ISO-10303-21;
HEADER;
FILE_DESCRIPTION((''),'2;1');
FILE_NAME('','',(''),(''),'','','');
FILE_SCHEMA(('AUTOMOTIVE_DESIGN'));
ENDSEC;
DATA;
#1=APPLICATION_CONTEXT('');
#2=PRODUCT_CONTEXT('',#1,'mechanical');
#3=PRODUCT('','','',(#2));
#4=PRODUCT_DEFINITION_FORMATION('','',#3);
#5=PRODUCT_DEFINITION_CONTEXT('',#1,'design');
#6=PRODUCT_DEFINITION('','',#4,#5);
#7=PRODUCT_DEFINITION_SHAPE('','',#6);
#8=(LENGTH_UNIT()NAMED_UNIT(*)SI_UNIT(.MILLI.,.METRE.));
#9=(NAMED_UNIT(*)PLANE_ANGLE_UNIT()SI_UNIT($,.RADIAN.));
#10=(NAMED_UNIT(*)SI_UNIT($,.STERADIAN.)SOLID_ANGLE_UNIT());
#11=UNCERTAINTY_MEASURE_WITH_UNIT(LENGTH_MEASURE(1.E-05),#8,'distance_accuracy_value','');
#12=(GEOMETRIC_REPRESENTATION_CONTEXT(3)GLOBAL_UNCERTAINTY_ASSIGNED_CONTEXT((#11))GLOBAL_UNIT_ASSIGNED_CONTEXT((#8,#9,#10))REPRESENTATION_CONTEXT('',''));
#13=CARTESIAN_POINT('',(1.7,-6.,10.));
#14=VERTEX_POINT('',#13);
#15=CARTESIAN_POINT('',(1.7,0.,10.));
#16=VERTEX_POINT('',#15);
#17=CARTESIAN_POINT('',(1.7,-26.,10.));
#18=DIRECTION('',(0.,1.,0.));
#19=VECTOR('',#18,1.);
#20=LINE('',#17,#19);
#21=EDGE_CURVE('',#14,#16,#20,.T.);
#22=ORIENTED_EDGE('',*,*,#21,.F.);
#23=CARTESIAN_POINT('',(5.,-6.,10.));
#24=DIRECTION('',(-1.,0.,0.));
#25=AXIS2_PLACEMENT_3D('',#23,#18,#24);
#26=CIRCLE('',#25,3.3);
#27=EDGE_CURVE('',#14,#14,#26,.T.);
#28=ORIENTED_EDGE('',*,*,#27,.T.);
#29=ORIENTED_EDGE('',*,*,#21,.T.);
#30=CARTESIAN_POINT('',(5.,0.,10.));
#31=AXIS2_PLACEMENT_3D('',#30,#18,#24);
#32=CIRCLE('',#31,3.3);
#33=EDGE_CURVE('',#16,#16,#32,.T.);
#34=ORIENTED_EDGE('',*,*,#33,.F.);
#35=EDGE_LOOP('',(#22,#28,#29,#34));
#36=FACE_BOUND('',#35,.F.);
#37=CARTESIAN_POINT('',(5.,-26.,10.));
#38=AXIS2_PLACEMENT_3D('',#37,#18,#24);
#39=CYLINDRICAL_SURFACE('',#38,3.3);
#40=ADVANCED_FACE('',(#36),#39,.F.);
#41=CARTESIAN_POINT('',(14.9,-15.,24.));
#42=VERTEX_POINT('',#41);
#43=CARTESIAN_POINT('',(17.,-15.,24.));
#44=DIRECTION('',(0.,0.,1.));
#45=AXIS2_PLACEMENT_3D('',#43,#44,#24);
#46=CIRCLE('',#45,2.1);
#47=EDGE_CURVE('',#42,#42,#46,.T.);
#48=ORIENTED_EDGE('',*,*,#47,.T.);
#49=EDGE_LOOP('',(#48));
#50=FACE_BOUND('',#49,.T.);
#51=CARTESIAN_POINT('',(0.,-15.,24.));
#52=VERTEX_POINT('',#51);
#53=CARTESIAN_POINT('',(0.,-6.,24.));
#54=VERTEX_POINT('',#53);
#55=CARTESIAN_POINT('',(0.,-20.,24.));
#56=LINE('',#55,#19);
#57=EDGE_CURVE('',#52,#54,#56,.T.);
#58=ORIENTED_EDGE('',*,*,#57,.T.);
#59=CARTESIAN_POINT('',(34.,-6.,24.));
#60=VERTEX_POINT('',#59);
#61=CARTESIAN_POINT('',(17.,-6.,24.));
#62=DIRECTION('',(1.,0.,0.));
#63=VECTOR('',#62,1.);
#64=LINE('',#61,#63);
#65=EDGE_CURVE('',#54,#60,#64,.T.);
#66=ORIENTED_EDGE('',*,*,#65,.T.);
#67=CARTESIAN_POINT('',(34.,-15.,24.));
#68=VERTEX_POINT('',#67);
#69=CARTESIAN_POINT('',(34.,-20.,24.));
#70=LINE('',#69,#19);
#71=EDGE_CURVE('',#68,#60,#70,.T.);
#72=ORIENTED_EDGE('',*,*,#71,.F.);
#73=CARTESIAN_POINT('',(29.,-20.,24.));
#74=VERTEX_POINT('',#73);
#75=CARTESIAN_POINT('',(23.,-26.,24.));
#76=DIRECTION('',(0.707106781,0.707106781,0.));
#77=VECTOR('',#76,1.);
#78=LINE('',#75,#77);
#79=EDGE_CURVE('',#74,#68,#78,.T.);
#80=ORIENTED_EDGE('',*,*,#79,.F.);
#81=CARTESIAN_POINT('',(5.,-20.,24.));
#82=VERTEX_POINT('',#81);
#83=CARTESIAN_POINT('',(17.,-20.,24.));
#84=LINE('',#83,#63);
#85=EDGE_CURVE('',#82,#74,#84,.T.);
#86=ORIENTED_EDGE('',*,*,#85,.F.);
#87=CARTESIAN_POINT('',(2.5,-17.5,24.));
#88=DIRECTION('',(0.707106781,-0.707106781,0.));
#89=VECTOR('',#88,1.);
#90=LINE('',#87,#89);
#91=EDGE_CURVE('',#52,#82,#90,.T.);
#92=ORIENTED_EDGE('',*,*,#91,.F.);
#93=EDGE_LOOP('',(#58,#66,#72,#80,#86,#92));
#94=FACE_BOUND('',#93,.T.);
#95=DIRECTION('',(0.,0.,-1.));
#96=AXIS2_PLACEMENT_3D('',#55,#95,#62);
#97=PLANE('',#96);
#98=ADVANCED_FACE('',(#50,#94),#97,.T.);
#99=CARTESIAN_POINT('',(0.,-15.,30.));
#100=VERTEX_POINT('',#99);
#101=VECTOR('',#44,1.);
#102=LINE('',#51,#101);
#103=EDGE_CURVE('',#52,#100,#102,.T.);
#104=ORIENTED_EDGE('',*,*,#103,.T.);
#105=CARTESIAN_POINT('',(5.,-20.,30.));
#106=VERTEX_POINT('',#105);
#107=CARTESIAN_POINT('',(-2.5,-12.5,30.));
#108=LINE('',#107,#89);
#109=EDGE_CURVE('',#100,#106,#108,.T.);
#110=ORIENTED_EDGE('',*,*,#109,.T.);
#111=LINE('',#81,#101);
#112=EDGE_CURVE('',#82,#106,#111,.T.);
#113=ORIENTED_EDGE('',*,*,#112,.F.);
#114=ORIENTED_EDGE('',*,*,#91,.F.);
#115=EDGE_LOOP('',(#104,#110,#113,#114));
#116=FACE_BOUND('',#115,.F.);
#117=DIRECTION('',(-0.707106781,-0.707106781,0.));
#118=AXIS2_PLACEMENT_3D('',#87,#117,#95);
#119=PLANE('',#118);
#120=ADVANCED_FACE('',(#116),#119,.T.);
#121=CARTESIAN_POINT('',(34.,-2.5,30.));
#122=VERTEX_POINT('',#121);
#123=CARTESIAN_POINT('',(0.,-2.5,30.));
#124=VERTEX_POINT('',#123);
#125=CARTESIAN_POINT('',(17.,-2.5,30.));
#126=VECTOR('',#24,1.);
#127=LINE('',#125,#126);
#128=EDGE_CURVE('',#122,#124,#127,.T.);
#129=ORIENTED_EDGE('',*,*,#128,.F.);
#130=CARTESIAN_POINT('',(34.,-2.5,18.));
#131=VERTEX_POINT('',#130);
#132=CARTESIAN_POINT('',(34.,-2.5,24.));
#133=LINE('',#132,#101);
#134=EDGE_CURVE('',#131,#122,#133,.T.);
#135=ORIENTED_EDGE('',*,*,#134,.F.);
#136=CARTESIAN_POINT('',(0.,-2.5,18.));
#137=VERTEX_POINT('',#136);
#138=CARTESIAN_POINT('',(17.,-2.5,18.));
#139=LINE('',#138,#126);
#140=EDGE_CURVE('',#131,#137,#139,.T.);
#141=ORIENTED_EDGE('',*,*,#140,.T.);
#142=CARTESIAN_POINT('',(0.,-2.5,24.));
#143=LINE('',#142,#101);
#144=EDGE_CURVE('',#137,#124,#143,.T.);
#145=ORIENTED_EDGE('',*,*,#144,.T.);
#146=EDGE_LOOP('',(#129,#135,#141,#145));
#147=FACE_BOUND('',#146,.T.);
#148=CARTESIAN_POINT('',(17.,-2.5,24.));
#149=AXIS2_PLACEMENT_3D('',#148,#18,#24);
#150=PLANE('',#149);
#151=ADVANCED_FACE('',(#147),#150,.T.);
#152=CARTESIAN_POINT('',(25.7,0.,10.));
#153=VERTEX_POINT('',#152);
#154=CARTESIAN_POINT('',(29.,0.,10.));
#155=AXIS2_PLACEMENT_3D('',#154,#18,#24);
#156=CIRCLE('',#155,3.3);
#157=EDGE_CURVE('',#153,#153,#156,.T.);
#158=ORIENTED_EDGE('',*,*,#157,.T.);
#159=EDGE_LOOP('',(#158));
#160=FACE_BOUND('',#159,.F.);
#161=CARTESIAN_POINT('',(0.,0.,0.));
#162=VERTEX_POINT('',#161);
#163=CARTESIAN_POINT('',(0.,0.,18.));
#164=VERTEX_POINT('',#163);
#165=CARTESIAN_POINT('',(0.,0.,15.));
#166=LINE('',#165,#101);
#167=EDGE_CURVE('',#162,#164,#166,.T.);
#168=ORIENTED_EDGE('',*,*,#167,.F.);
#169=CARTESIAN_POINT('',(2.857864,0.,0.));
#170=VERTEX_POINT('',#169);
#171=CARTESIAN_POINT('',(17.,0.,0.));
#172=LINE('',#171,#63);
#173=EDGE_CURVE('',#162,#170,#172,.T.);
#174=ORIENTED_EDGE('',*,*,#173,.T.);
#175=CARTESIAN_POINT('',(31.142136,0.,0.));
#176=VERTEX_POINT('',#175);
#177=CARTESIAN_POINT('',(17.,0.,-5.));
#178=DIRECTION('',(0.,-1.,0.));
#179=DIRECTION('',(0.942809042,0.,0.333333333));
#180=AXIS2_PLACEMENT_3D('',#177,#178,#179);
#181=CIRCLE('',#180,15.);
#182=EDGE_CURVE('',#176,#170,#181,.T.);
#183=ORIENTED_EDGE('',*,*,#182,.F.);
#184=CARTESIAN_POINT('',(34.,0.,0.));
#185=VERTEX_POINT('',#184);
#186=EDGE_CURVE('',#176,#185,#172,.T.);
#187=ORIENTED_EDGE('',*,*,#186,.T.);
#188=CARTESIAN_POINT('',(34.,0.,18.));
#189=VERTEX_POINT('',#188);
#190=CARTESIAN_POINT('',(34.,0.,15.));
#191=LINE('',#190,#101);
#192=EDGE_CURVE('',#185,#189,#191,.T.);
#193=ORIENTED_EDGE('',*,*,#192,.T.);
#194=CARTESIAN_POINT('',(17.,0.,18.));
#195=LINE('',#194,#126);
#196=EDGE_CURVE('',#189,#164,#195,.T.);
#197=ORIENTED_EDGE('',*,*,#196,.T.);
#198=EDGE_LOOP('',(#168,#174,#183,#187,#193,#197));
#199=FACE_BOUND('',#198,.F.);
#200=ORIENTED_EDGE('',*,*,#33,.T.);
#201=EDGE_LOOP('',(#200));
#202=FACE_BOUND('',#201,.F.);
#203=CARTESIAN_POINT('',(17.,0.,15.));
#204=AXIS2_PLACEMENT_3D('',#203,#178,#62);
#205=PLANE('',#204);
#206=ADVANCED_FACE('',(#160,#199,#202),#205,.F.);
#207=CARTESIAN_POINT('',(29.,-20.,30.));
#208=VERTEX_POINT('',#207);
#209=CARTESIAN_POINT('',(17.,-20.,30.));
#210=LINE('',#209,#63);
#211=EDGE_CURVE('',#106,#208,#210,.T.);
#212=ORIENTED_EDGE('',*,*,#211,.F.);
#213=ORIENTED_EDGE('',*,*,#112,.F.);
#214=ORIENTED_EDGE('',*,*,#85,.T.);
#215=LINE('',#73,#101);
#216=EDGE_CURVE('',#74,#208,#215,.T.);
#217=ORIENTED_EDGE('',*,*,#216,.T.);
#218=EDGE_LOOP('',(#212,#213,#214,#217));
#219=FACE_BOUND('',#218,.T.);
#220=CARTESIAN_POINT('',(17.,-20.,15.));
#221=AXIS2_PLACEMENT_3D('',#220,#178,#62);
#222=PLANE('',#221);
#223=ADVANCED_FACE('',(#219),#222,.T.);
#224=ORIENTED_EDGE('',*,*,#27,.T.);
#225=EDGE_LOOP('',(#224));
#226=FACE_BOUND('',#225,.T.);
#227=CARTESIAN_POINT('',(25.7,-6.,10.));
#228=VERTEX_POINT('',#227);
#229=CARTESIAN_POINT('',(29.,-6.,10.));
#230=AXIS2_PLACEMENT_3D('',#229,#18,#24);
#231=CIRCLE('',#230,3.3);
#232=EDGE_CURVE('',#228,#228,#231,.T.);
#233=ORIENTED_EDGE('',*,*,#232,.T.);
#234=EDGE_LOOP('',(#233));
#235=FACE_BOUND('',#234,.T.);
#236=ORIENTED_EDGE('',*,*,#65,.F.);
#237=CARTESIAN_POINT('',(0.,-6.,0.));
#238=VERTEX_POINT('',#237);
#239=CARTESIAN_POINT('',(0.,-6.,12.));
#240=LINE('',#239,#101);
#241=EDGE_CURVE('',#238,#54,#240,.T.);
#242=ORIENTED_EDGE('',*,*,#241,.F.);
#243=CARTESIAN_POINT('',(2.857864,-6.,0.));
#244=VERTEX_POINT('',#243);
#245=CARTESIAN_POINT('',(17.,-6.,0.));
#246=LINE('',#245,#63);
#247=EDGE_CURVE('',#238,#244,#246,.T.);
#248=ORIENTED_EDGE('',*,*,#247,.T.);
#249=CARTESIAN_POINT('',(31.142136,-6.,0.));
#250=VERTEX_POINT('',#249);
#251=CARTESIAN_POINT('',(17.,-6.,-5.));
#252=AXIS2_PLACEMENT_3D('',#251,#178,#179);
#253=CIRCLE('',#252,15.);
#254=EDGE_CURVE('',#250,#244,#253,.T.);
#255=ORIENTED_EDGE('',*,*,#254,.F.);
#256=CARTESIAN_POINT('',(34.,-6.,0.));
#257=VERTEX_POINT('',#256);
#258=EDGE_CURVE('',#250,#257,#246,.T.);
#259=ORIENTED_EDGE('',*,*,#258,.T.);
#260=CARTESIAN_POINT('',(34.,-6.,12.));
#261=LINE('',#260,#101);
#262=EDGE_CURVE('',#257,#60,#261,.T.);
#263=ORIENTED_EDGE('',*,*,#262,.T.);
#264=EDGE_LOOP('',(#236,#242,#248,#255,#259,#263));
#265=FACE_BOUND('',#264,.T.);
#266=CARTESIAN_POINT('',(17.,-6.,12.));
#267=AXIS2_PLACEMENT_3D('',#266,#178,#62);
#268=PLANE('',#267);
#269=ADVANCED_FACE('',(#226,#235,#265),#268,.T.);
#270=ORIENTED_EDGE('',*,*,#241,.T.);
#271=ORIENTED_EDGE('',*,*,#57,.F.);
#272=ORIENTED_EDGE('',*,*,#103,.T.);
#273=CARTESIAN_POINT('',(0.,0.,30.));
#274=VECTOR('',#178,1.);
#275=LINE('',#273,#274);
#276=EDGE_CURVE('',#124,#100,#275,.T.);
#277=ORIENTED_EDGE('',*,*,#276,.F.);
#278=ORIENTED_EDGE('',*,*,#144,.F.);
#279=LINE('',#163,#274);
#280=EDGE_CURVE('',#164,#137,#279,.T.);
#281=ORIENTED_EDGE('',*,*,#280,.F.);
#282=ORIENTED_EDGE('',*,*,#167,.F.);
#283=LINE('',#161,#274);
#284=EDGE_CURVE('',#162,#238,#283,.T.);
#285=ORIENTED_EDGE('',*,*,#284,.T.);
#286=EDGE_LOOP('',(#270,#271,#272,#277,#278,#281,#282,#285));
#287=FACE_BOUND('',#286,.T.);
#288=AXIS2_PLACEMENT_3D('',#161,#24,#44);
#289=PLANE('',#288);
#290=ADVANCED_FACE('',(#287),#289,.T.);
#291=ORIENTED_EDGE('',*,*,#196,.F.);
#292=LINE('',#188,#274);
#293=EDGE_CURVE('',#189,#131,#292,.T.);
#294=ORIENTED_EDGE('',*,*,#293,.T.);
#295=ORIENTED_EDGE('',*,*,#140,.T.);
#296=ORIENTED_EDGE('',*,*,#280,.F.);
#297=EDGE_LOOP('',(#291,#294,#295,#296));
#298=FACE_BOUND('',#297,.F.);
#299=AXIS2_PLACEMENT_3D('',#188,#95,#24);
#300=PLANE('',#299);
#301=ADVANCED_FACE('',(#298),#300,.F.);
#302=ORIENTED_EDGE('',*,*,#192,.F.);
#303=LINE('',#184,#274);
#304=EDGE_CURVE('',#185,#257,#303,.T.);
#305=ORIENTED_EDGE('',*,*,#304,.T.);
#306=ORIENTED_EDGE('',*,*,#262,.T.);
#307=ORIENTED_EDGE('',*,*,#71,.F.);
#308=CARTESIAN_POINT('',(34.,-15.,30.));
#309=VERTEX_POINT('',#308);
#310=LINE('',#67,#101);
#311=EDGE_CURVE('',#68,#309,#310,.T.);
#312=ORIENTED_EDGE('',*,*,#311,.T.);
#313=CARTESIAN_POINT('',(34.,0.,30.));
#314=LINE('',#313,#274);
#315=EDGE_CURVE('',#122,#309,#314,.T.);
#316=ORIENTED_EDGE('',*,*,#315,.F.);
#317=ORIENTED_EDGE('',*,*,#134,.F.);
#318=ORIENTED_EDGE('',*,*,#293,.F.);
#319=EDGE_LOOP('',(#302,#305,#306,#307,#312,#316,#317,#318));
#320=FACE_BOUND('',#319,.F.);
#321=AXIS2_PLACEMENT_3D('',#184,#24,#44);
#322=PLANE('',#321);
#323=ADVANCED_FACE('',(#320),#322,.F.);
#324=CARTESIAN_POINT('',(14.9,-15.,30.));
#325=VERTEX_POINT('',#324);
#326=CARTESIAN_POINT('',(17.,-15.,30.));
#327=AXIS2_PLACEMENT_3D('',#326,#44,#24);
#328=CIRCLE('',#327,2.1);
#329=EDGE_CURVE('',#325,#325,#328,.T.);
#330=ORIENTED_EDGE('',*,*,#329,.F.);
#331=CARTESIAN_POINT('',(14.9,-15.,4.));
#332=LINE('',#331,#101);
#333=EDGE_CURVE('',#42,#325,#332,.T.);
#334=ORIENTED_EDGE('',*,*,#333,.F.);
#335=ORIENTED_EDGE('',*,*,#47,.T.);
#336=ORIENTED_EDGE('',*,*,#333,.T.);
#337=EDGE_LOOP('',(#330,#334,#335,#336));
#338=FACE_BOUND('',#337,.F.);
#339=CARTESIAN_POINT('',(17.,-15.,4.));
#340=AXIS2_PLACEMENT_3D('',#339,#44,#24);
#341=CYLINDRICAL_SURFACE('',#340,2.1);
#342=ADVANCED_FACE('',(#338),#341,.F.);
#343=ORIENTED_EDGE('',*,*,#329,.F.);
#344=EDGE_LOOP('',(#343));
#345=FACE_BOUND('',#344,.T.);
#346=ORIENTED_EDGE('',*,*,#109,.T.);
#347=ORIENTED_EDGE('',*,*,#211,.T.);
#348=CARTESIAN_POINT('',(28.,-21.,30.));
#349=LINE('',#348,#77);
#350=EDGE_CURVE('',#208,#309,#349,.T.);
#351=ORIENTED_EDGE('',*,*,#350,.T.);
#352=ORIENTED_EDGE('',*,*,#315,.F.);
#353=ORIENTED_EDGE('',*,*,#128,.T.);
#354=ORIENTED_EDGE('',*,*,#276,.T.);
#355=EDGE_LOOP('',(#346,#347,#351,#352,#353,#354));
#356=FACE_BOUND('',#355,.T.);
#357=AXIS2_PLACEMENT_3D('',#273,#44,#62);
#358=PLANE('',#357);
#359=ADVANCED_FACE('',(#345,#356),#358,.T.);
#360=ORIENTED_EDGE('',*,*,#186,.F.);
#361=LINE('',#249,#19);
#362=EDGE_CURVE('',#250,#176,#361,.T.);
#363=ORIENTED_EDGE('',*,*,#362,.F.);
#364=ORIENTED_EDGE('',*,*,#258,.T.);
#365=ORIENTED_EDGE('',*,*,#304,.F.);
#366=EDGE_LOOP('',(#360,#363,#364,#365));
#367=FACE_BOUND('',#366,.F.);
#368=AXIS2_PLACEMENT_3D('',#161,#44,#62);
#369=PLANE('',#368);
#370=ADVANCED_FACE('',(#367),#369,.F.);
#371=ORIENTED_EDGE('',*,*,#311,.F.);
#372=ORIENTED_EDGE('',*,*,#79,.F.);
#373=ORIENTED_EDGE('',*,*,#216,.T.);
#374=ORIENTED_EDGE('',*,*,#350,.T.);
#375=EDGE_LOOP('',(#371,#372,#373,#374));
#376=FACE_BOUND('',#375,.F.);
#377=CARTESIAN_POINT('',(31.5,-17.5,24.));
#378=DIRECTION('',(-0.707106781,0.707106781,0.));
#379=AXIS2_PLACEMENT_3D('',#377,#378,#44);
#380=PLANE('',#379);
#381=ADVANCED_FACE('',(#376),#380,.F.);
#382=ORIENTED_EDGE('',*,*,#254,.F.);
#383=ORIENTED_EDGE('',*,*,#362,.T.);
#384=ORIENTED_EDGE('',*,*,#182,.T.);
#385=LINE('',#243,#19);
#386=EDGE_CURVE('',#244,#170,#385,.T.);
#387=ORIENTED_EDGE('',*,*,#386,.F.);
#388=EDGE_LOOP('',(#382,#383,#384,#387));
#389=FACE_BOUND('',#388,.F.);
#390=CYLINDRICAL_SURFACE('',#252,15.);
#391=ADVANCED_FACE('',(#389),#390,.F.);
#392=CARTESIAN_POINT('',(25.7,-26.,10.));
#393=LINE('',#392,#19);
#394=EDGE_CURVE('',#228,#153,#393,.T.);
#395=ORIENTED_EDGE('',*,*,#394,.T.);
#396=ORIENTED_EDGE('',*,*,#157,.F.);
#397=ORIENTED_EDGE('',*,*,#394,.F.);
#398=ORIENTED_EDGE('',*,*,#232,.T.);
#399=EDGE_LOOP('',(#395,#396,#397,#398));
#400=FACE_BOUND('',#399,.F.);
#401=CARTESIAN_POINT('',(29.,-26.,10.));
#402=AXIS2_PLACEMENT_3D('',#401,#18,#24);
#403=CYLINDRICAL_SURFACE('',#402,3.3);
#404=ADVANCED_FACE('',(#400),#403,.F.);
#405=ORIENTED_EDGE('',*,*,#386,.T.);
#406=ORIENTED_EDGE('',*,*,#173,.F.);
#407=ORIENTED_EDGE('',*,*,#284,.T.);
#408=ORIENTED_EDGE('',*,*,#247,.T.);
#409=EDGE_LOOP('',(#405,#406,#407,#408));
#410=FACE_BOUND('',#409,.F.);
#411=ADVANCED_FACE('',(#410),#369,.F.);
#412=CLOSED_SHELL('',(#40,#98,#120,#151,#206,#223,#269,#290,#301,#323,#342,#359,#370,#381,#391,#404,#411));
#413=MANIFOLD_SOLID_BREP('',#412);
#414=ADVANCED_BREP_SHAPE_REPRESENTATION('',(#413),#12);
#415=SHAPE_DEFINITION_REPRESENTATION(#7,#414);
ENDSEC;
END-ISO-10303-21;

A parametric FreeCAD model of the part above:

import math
import FreeCAD as App
import Part
import Sketcher
from FreeCAD import Vector


def edges_at(feature, points):
    """Names of the edges that pass closest to the given points."""
    edges = feature.Shape.Edges
    near = lambda p: min(range(len(edges)), key=lambda i: edges[i].distToShape(Part.Vertex(*p))[0])
    return sorted({f"Edge{near(p) + 1}" for p in points})


def add_polygon(sketch, points):
    """Adds a closed chain of lines whose ends are joined by coincident constraints."""
    first, n = sketch.GeometryCount, len(points)
    for a, b in zip(points, points[1:] + points[:1]):
        sketch.addGeometry(Part.LineSegment(App.Vector(*a, 0), App.Vector(*b, 0)), False)
    for i in range(n):
        sketch.addConstraint(Sketcher.Constraint("Coincident", first + i, 2, first + (i + 1) % n, 1))

doc = App.newDocument("Part")
params = doc.addObject("Spreadsheet::Sheet", "Params")
for row, (alias, value) in enumerate([
    ("sketch1_width", "34 mm"),
    ("sketch1_height", "30 mm"),
    ("pad1_length", "20 mm"),
    ("sketch2_width", "34 mm"),
    ("sketch2_height", "24 mm"),
    ("pocket1_length", "14 mm"),
    ("sketch3_diameter", "4.2 mm"),
    ("hole_diameter", "4.2 mm"),
    ("hole_depth", "20 mm"),
    ("chamfer_size", "5 mm"),
    ("sketch4_radius", "15 mm"),
    ("pocket2_length", "25 mm"),
    ("sketch5_diameter", "6.6 mm"),
    ("hole2_diameter", "6.6 mm"),
    ("hole2_depth", "20 mm"),
    ("sketch6_width", "34 mm"),
    ("sketch6_height", "12 mm"),
    ("pocket3_length", "2.5 mm"),
], start=1):
    params.set(f"A{row}", alias)
    params.set(f"B{row}", "=" + value)
    params.setAlias(f"B{row}", alias)

body = doc.addObject("PartDesign::Body", "Body")

sketch1 = body.newObject("Sketcher::SketchObject", "Sketch")
sketch1.AttachmentSupport = (doc.getObject("XZ_Plane"), [""])
sketch1.MapMode = "FlatFace"
add_polygon(sketch1, [(0, 30), (0, 0), (34, 0), (34, 30)])
sketch1.addConstraint([
    Sketcher.Constraint("Vertical", 0),
    Sketcher.Constraint("Horizontal", 1),
    Sketcher.Constraint("Vertical", 2),
    Sketcher.Constraint("Horizontal", 3),
    Sketcher.Constraint("Coincident", 0, 2, -1, 1),
    Sketcher.Constraint("DistanceX", 1, 1, 1, 2, 34.0),
    Sketcher.Constraint("DistanceY", 0, 2, 0, 1, 30.0),
])
sketch1.setExpression("Constraints[9]", "Params.sketch1_width")
sketch1.setExpression("Constraints[10]", "Params.sketch1_height")
pad1 = body.newObject("PartDesign::Pad", "Pad")
pad1.Profile = sketch1
pad1.setExpression("Length", "Params.pad1_length")

sketch2 = body.newObject("Sketcher::SketchObject", "Sketch001")
sketch2.AttachmentSupport = (doc.getObject("XZ_Plane"), [""])
sketch2.MapMode = "FlatFace"
sketch2.AttachmentOffset = App.Placement(Vector(0, 0, 20), App.Rotation())
add_polygon(sketch2, [(0, 24), (0, 0), (34, 0), (34, 24)])
sketch2.addConstraint([
    Sketcher.Constraint("Vertical", 0),
    Sketcher.Constraint("Horizontal", 1),
    Sketcher.Constraint("Vertical", 2),
    Sketcher.Constraint("Horizontal", 3),
    Sketcher.Constraint("Coincident", 0, 2, -1, 1),
    Sketcher.Constraint("DistanceX", 1, 1, 1, 2, 34.0),
    Sketcher.Constraint("DistanceY", 0, 2, 0, 1, 24.0),
])
sketch2.setExpression("Constraints[9]", "Params.sketch2_width")
sketch2.setExpression("Constraints[10]", "Params.sketch2_height")
pocket1 = body.newObject("PartDesign::Pocket", "Pocket")
pocket1.Profile = sketch2
pocket1.setExpression("Length", "Params.pocket1_length")

sketch3 = body.newObject("Sketcher::SketchObject", "Sketch002")
sketch3.AttachmentSupport = (doc.getObject("XY_Plane"), [""])
sketch3.MapMode = "FlatFace"
sketch3.AttachmentOffset = App.Placement(Vector(0, 0, 24), App.Rotation())
sketch3.addGeometry(Part.Circle(Vector(17, -15, 0), Vector(0, 0, 1), 2.1), False)
sketch3.addConstraint([
    Sketcher.Constraint("Diameter", 0, 4.2),
    Sketcher.Constraint("DistanceX", -1, 1, 0, 3, 17.0),
    Sketcher.Constraint("DistanceY", 0, 3, -1, 1, 15.0),
])
sketch3.setExpression("Constraints[0]", "Params.sketch3_diameter")
doc.recompute()
hole = body.newObject("PartDesign::Hole", "Hole")
hole.Profile = sketch3
hole.ThreadType = "None"
hole.setExpression("Diameter", "Params.hole_diameter")
hole.DepthType = "Dimension"
hole.setExpression("Depth", "Params.hole_depth")
hole.DrillPoint = "Angled"
hole.DrillPointAngle = 118
hole.Reversed = True
doc.recompute()

chamfer = body.newObject("PartDesign::Chamfer", "Chamfer")
chamfer.Base = (hole, edges_at(hole, [(34, -20, 27), (0, -20, 27)]))
chamfer.setExpression("Size", "Params.chamfer_size")

sketch4 = body.newObject("Sketcher::SketchObject", "Sketch003")
sketch4.AttachmentSupport = (doc.getObject("XZ_Plane"), [""])
sketch4.MapMode = "FlatFace"
sketch4.AttachmentOffset = App.Placement(Vector(0, 0, 6), App.Rotation())
sketch4.addGeometry([
    Part.ArcOfCircle(Part.Circle(Vector(17, -5, 0), Vector(0, 0, 1), 15), math.radians(161), math.radians(360)),
    Part.ArcOfCircle(Part.Circle(Vector(17, -5, 0), Vector(0, 0, 1), 15), math.radians(0), math.radians(19.47)),
    Part.ArcOfCircle(Part.Circle(Vector(17, -5, 0), Vector(0, 0, 1), 15), math.radians(19), math.radians(161)),
], False)
sketch4.addConstraint([
    Sketcher.Constraint("Tangent", 0, 2, 1, 1),
    Sketcher.Constraint("Tangent", 1, 2, 2, 1),
    Sketcher.Constraint("Tangent", 2, 2, 0, 1),
    Sketcher.Constraint("PointOnObject", 1, 2, -1),
    Sketcher.Constraint("PointOnObject", 2, 2, -1),
    Sketcher.Constraint("Horizontal", 2, 3, 0, 2),
    Sketcher.Constraint("Radius", 0, 15.0),
    Sketcher.Constraint("DistanceX", -1, 1, 0, 3, 17.0),
    Sketcher.Constraint("DistanceY", 0, 3, -1, 1, 5.0),
])
sketch4.setExpression("Constraints[6]", "Params.sketch4_radius")
pocket2 = body.newObject("PartDesign::Pocket", "Pocket001")
pocket2.Profile = sketch4
pocket2.setExpression("Length", "Params.pocket2_length")

sketch5 = body.newObject("Sketcher::SketchObject", "Sketch004")
sketch5.AttachmentSupport = (doc.getObject("XZ_Plane"), [""])
sketch5.MapMode = "FlatFace"
sketch5.AttachmentOffset = App.Placement(Vector(0, 0, 6), App.Rotation())
sketch5.addGeometry([
    Part.Circle(Vector(5, 10, 0), Vector(0, 0, 1), 3.3),
    Part.Circle(Vector(29, 10, 0), Vector(0, 0, 1), 3.3),
], False)
sketch5.addConstraint([
    Sketcher.Constraint("Equal", 0, 1),
    Sketcher.Constraint("Horizontal", 0, 3, 1, 3),
    Sketcher.Constraint("Diameter", 0, 6.6),
    Sketcher.Constraint("DistanceX", -1, 1, 0, 3, 5.0),
    Sketcher.Constraint("DistanceY", -1, 1, 0, 3, 10.0),
    Sketcher.Constraint("DistanceX", -1, 1, 1, 3, 29.0),
])
sketch5.setExpression("Constraints[2]", "Params.sketch5_diameter")
doc.recompute()
hole2 = body.newObject("PartDesign::Hole", "Hole001")
hole2.Profile = sketch5
hole2.ThreadType = "None"
hole2.setExpression("Diameter", "Params.hole2_diameter")
hole2.DepthType = "Dimension"
hole2.setExpression("Depth", "Params.hole2_depth")
hole2.DrillPoint = "Angled"
hole2.DrillPointAngle = 118

sketch6 = body.newObject("Sketcher::SketchObject", "Sketch005")
sketch6.AttachmentSupport = (doc.getObject("XZ_Plane"), [""])
sketch6.MapMode = "FlatFace"
add_polygon(sketch6, [(34, 30), (34, 18), (0, 18), (0, 30)])
sketch6.addConstraint([
    Sketcher.Constraint("Vertical", 0),
    Sketcher.Constraint("Horizontal", 1),
    Sketcher.Constraint("Vertical", 2),
    Sketcher.Constraint("Horizontal", 3),
    Sketcher.Constraint("PointOnObject", 1, 2, -2),
    Sketcher.Constraint("DistanceX", 1, 2, 1, 1, 34.0),
    Sketcher.Constraint("DistanceY", 0, 2, 0, 1, 12.0),
    Sketcher.Constraint("DistanceY", -1, 1, 0, 2, 18.0),
])
sketch6.setExpression("Constraints[9]", "Params.sketch6_width")
sketch6.setExpression("Constraints[10]", "Params.sketch6_height")
pocket3 = body.newObject("PartDesign::Pocket", "Pocket002")
pocket3.Profile = sketch6
pocket3.setExpression("Length", "Params.pocket3_length")
pocket3.Reversed = True

doc.recompute()
